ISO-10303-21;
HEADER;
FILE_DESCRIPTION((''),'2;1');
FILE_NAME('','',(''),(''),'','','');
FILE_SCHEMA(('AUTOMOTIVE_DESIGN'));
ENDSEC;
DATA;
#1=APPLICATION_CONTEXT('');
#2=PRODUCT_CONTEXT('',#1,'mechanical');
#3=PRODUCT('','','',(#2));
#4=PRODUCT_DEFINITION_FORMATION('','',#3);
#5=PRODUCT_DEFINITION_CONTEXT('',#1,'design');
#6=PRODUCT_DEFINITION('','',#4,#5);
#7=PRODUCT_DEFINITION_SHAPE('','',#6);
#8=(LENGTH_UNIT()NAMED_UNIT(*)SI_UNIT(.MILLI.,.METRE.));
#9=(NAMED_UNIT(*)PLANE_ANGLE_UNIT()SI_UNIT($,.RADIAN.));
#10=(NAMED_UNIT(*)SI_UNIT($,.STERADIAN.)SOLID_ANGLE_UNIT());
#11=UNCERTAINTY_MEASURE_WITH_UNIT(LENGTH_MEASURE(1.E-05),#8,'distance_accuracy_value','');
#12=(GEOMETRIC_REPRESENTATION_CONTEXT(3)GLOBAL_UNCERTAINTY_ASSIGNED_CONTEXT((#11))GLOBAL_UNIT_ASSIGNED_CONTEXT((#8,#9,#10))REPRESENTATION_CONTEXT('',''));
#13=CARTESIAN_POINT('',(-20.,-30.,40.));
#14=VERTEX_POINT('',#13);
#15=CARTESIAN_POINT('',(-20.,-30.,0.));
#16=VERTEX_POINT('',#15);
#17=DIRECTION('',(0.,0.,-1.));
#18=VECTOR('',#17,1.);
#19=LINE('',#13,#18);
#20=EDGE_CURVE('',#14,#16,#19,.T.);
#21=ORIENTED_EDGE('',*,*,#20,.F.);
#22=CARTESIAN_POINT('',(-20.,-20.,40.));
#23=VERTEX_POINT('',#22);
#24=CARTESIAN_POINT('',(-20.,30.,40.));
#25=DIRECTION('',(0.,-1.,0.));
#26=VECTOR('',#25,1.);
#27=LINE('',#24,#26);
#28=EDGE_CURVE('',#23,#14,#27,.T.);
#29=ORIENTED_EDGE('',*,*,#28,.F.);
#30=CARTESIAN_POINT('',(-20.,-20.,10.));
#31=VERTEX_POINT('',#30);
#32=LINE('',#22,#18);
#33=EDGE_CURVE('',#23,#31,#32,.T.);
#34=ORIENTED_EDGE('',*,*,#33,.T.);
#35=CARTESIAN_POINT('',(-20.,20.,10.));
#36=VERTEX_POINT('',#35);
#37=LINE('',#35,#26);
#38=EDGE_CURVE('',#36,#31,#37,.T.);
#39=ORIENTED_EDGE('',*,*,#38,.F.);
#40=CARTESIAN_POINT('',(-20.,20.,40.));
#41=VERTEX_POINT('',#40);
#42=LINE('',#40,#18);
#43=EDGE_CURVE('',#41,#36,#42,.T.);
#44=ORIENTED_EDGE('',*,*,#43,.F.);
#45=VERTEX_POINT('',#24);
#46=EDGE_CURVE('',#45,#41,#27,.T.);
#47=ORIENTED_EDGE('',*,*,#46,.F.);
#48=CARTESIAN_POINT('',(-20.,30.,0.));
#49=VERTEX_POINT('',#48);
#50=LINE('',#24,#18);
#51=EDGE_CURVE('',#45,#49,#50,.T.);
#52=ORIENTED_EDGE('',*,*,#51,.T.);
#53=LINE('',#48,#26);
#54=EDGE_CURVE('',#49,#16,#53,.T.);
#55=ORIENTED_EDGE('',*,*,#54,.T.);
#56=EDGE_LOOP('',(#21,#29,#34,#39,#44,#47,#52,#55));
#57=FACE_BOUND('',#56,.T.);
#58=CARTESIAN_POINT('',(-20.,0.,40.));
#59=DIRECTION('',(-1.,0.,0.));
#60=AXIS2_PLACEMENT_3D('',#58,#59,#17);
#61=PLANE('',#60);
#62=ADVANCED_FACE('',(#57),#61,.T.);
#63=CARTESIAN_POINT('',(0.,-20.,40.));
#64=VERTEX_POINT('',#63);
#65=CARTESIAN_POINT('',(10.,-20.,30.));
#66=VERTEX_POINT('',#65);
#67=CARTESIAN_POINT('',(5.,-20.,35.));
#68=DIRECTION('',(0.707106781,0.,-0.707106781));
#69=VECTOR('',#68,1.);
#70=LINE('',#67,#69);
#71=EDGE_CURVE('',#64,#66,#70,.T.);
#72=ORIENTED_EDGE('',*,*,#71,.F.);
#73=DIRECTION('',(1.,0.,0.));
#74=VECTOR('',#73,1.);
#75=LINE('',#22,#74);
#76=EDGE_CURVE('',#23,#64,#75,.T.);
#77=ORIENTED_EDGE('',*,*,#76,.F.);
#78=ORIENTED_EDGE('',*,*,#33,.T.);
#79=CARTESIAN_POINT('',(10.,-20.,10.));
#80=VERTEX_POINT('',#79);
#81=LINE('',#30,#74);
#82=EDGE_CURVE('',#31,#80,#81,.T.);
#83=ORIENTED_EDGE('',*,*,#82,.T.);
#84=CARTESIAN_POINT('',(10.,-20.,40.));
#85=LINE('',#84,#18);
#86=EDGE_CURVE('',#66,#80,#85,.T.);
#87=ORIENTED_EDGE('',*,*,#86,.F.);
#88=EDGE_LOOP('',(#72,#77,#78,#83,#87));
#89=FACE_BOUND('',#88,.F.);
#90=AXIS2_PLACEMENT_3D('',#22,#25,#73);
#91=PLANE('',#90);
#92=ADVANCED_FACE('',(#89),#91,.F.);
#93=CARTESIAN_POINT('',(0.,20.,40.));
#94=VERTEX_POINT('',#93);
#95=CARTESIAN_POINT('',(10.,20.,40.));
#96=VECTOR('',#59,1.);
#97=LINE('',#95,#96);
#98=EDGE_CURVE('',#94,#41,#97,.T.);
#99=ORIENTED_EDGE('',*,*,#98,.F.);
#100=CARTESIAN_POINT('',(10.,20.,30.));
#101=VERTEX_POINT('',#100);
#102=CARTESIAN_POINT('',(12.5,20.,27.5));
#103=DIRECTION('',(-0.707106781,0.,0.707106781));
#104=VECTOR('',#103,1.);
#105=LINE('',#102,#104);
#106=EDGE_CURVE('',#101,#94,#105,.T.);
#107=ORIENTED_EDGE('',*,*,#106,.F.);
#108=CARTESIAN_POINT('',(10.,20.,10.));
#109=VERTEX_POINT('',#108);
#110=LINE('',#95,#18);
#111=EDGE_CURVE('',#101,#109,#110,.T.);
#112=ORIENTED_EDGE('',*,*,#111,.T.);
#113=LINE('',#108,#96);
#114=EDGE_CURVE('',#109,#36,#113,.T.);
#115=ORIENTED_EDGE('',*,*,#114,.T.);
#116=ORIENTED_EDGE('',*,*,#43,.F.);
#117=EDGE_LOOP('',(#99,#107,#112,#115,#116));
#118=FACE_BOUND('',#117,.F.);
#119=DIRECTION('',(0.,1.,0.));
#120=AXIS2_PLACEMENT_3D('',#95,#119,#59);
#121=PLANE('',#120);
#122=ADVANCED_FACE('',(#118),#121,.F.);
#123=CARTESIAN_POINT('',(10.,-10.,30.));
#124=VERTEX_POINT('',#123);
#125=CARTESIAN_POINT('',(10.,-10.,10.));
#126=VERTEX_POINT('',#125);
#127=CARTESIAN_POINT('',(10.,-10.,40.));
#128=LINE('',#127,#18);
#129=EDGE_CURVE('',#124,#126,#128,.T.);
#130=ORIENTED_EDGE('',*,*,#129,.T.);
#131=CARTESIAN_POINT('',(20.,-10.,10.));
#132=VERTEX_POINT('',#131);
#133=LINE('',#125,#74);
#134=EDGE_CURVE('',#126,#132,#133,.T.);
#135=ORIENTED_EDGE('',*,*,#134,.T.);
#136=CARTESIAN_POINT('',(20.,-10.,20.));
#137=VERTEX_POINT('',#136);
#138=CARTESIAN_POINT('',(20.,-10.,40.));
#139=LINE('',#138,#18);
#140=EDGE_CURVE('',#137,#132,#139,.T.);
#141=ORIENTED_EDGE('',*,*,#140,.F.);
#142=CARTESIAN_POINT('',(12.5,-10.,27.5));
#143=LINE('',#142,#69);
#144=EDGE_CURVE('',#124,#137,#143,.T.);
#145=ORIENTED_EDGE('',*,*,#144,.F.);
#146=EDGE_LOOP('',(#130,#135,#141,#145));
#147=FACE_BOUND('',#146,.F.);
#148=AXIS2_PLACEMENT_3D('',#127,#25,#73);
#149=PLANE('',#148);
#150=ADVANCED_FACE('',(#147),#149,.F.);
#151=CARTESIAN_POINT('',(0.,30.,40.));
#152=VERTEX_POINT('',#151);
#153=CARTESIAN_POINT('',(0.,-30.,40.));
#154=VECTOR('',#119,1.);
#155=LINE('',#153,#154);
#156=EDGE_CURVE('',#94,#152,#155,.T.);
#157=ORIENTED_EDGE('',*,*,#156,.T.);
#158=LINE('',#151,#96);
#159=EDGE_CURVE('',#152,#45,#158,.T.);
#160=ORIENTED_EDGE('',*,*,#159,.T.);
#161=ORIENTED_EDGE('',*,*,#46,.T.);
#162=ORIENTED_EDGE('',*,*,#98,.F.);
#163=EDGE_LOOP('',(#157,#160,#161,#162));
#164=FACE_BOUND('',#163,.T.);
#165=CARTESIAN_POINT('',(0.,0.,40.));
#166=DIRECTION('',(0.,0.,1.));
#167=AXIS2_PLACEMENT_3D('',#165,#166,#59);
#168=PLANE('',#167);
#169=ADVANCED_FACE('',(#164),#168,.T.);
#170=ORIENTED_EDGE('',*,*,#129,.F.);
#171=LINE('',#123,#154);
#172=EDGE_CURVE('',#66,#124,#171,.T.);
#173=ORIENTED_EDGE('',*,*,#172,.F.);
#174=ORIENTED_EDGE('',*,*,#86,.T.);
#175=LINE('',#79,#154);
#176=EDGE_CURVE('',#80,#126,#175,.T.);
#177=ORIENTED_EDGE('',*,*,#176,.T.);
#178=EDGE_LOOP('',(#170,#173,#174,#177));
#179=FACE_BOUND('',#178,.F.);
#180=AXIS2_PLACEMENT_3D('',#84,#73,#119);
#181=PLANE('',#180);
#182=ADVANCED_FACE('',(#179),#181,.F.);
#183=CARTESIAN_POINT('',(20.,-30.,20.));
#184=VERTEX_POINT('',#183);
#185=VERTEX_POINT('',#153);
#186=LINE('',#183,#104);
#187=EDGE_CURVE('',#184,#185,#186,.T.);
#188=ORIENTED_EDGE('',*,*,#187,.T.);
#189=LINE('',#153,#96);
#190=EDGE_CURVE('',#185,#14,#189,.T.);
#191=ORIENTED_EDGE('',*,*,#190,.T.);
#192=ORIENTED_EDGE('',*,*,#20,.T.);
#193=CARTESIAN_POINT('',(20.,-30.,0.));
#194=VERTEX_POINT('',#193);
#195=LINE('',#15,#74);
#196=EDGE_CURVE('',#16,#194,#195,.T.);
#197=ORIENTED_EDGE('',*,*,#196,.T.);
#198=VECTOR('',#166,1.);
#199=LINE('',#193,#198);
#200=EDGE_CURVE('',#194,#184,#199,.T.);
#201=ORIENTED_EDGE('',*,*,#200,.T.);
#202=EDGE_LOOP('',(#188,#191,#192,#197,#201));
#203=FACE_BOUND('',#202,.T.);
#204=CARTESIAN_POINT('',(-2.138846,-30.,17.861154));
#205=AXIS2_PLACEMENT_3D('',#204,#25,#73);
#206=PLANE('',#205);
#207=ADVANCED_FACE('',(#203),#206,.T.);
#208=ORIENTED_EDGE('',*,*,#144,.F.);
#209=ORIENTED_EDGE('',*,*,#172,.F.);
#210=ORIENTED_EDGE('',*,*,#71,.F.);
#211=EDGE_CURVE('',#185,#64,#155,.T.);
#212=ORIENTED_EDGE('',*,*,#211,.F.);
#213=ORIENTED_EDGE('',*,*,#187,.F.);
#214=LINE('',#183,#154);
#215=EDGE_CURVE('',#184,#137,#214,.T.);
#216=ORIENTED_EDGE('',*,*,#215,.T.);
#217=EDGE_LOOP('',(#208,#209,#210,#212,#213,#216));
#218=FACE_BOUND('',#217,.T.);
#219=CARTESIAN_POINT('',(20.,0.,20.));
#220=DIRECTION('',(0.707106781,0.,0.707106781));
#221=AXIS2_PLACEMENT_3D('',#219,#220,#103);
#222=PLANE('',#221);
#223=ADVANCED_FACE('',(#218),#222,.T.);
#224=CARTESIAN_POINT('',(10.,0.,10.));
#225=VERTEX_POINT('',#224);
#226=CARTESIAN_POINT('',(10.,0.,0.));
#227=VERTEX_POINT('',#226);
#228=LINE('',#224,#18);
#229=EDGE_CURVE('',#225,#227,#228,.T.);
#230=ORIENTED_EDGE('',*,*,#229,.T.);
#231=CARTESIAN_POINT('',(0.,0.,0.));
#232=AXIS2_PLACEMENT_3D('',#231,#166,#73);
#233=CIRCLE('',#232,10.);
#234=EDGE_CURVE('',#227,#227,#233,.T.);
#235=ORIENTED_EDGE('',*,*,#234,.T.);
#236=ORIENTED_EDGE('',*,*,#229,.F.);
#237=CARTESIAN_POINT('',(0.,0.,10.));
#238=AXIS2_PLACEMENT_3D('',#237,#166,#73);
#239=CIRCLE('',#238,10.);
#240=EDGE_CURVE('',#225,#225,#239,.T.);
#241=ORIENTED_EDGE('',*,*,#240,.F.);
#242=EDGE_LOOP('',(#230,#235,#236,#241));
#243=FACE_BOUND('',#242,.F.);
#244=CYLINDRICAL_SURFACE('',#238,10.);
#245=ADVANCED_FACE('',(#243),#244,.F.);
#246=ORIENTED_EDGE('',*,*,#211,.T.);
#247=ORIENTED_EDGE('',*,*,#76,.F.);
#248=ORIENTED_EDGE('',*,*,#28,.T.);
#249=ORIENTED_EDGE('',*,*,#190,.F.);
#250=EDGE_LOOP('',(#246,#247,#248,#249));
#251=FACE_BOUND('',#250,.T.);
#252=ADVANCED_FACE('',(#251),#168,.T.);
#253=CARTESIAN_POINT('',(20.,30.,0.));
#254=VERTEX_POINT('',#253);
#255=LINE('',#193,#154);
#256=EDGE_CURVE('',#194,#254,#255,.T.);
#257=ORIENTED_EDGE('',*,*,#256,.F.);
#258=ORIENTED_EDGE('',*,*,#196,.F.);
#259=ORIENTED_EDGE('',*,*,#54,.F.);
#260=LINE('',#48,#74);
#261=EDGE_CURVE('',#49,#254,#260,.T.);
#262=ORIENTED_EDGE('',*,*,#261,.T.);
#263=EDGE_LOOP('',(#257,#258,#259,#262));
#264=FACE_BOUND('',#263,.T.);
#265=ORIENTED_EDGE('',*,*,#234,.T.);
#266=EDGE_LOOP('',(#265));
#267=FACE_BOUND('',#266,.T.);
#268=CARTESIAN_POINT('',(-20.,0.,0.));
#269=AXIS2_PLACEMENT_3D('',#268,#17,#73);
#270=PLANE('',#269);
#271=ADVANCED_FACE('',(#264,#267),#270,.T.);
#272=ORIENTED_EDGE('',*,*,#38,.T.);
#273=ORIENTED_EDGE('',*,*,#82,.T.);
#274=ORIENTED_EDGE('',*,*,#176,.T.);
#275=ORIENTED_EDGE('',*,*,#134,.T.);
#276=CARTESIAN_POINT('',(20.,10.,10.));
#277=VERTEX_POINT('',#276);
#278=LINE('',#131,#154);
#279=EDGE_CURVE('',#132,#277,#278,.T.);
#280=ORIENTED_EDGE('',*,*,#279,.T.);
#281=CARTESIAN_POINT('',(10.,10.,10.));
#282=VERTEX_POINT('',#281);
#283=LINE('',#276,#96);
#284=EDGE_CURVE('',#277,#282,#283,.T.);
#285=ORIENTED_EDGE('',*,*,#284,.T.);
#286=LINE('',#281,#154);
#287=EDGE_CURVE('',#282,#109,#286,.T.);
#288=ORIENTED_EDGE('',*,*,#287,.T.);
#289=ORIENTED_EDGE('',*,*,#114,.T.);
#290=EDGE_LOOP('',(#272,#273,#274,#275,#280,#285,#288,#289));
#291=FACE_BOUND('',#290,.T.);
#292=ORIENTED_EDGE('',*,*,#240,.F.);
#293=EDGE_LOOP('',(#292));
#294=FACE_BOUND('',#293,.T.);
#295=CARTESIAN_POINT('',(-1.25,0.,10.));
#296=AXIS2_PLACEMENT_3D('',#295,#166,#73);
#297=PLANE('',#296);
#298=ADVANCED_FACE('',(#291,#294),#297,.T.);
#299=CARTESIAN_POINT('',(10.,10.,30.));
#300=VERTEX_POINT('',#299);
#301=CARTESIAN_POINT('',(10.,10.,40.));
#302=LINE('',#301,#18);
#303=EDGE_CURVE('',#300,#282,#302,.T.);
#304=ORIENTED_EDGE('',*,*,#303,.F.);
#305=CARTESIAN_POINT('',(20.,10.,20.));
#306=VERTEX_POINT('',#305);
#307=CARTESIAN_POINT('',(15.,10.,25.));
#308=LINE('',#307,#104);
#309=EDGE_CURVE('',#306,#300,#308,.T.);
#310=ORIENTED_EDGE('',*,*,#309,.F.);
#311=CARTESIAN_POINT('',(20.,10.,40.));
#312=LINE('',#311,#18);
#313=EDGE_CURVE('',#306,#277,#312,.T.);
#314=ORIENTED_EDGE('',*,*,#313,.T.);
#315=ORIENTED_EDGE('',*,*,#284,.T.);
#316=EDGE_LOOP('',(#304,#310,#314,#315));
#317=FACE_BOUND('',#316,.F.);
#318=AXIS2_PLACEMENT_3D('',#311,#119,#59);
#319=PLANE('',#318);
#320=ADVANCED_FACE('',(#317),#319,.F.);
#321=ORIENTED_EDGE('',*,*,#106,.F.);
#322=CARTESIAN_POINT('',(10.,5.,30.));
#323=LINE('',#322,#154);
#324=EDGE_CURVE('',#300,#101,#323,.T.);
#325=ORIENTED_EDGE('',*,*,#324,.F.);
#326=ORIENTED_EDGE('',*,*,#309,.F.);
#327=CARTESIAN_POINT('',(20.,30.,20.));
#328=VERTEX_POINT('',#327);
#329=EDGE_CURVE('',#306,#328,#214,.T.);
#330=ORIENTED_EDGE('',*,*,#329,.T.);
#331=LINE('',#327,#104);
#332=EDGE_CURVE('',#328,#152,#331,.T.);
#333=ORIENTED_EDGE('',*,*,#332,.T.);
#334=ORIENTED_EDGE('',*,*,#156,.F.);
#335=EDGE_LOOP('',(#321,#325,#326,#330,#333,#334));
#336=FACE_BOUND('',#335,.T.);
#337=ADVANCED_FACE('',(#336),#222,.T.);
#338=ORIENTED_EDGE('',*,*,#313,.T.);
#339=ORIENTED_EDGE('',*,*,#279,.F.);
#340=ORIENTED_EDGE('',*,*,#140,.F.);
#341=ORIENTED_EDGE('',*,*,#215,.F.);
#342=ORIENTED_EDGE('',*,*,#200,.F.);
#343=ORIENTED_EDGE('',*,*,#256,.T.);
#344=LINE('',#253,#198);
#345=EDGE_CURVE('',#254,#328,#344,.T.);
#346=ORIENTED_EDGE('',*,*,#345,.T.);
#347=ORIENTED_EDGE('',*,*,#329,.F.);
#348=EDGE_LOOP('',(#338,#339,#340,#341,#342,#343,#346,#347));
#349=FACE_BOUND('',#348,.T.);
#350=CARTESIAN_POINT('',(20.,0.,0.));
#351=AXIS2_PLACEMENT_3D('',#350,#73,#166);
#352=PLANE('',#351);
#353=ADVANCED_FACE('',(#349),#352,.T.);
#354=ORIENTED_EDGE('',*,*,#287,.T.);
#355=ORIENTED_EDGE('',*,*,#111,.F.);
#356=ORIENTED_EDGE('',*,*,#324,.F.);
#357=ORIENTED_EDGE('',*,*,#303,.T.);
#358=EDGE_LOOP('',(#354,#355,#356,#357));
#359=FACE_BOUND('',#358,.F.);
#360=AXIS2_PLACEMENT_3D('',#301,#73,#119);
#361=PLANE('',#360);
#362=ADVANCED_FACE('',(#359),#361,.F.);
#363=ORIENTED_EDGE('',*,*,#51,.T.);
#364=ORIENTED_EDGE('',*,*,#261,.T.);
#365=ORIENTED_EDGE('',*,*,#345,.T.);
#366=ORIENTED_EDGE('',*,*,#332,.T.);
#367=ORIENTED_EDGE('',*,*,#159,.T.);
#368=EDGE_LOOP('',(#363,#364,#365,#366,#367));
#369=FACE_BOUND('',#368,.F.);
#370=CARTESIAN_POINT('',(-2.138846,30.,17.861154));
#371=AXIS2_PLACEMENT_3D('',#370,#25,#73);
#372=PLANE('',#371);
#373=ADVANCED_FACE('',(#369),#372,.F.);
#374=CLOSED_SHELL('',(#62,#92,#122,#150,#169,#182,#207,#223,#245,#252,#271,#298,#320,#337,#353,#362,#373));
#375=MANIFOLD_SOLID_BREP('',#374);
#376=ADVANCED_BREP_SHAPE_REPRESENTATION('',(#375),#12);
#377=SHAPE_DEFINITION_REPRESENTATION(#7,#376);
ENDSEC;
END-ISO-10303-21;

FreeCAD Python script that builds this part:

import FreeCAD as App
import Part
import Sketcher

V = App.Vector

doc = App.newDocument("Part")
body = doc.addObject("PartDesign::Body", "Body")

# Sketch on XZ plane
sketch1 = body.newObject("Sketcher::SketchObject", "Sketch")
sketch1.AttachmentSupport = (doc.getObject("XZ_Plane"), [""])
sketch1.MapMode = "FlatFace"
sketch1.addGeometry([
    Part.LineSegment(V(0, 40, 0), V(-20, 40, 0)),  # 0
    Part.LineSegment(V(-20, 40, 0), V(-20, 0, 0)),  # 1
    Part.LineSegment(V(-20, 0, 0), V(20, 0, 0)),  # 2
    Part.LineSegment(V(20, 0, 0), V(20, 20, 0)),  # 3
    Part.LineSegment(V(20, 20, 0), V(0, 40, 0)),  # 4
], False)
sketch1.addConstraint([
    Sketcher.Constraint("Coincident", 0, 2, 1, 1),
    Sketcher.Constraint("Coincident", 1, 2, 2, 1),
    Sketcher.Constraint("Coincident", 2, 2, 3, 1),
    Sketcher.Constraint("Coincident", 3, 2, 4, 1),
    Sketcher.Constraint("Coincident", 4, 2, 0, 1),
    Sketcher.Constraint("Horizontal", 0),
    Sketcher.Constraint("Vertical", 1),
    Sketcher.Constraint("Horizontal", 2),
    Sketcher.Constraint("Vertical", 3),
    Sketcher.Constraint("Symmetric", 1, 2, 2, 2, -1, 1),
    Sketcher.Constraint("PointOnObject", 4, 2, -2),
    Sketcher.Constraint("Equal", 2, 1),
    Sketcher.Constraint("Equal", 0, 3),
    Sketcher.Constraint("DistanceX", 0, 2, 0, 1, 20.0),
])
pad1 = body.newObject("PartDesign::Pad", "Pad")
pad1.Profile = sketch1
pad1.Length = 60
pad1.Midplane = True

# Sketch on XY plane
sketch2 = body.newObject("Sketcher::SketchObject", "Sketch001")
sketch2.AttachmentSupport = (doc.getObject("XY_Plane"), [""])
sketch2.MapMode = "FlatFace"
sketch2.AttachmentOffset = App.Placement(V(0, 0, 40), App.Rotation())
sketch2.addGeometry([
    Part.LineSegment(V(10, 20, 0), V(-20, 20, 0)),  # 0
    Part.LineSegment(V(-20, 20, 0), V(-20, -20, 0)),  # 1
    Part.LineSegment(V(-20, -20, 0), V(10, -20, 0)),  # 2
    Part.LineSegment(V(10, -20, 0), V(10, -10, 0)),  # 3
    Part.LineSegment(V(10, -10, 0), V(20, -10, 0)),  # 4
    Part.LineSegment(V(20, -10, 0), V(20, 10, 0)),  # 5
    Part.LineSegment(V(20, 10, 0), V(10, 10, 0)),  # 6
    Part.LineSegment(V(10, 10, 0), V(10, 20, 0)),  # 7
], False)
sketch2.addConstraint([
    Sketcher.Constraint("Coincident", 0, 2, 1, 1),
    Sketcher.Constraint("Coincident", 1, 2, 2, 1),
    Sketcher.Constraint("Coincident", 2, 2, 3, 1),
    Sketcher.Constraint("Coincident", 3, 2, 4, 1),
    Sketcher.Constraint("Coincident", 4, 2, 5, 1),
    Sketcher.Constraint("Coincident", 5, 2, 6, 1),
    Sketcher.Constraint("Coincident", 6, 2, 7, 1),
    Sketcher.Constraint("Coincident", 7, 2, 0, 1),
    Sketcher.Constraint("Horizontal", 0),
    Sketcher.Constraint("Vertical", 1),
    Sketcher.Constraint("Horizontal", 2),
    Sketcher.Constraint("Vertical", 3),
    Sketcher.Constraint("Horizontal", 4),
    Sketcher.Constraint("Vertical", 5),
    Sketcher.Constraint("Horizontal", 6),
    Sketcher.Constraint("Vertical", 7),
    Sketcher.Constraint("Symmetric", 3, 2, 6, 2, -1),
    Sketcher.Constraint("Equal", 6, 3),
    Sketcher.Constraint("Equal", 3, 7),
    Sketcher.Constraint("DistanceX", 0, 2, 0, 1, 30.0),
    Sketcher.Constraint("DistanceX", 4, 1, 4, 2, 10.0),
    Sketcher.Constraint("DistanceY", 1, 2, 1, 1, 40.0),
    Sketcher.Constraint("DistanceX", 0, 2, -1, 1, 20.0),
])
pocket1 = body.newObject("PartDesign::Pocket", "Pocket")
pocket1.Profile = sketch2
pocket1.Length = 30

# Sketch on XY plane
sketch3 = body.newObject("Sketcher::SketchObject", "Sketch002")
sketch3.AttachmentSupport = (doc.getObject("XY_Plane"), [""])
sketch3.MapMode = "FlatFace"
sketch3.AttachmentOffset = App.Placement(V(0, 0, 10), App.Rotation())
sketch3.addGeometry(Part.Circle(V(0, 0, 0), V(0, 0, 1), 10), False)
sketch3.addConstraint([
    Sketcher.Constraint("Coincident", 0, 3, -1, 1),
    Sketcher.Constraint("Diameter", 0, 20.0),
])
pocket2 = body.newObject("PartDesign::Pocket", "Pocket001")
pocket2.Profile = sketch3
pocket2.Length = 25

doc.recompute()
